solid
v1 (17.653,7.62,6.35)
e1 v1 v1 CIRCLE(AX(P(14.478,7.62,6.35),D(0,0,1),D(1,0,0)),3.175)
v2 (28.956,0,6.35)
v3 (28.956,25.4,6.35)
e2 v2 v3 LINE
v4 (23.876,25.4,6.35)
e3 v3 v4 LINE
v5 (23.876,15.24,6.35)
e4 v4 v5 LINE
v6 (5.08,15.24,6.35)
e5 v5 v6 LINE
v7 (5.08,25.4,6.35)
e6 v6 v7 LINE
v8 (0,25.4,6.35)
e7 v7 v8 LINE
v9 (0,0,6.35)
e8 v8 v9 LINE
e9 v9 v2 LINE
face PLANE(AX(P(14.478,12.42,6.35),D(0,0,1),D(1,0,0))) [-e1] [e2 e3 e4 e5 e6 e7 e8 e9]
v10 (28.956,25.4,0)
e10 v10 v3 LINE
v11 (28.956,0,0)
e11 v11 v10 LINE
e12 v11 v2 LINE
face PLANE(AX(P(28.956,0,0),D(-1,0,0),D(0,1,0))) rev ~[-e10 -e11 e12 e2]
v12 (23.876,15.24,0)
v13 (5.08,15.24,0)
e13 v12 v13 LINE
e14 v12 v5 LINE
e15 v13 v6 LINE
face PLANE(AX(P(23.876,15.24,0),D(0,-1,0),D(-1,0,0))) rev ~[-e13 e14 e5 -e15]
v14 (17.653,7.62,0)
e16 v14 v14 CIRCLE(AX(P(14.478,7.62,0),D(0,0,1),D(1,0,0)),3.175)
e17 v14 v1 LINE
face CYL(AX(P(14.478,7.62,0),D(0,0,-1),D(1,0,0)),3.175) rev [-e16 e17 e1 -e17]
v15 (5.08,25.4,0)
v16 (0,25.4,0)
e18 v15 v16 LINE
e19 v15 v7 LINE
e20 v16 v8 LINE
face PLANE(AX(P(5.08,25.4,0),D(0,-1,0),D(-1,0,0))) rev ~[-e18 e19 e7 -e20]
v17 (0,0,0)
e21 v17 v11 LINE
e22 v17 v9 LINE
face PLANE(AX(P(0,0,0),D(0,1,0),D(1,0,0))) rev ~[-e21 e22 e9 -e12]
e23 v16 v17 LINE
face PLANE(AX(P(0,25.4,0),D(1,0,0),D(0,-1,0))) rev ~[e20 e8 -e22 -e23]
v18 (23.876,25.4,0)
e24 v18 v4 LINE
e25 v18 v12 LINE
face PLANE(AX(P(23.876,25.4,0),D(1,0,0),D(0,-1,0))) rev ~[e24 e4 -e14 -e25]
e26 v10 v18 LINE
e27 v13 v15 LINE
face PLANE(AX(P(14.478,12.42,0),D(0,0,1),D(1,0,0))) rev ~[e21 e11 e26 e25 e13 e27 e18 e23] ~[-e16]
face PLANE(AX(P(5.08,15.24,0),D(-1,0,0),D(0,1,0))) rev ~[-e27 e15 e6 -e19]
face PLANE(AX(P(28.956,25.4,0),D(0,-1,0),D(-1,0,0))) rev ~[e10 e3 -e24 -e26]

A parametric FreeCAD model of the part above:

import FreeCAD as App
import Part
import Sketcher
from FreeCAD import Vector
Q = App.Units.Quantity


def add_polygon(sketch, points):
    """Adds a closed chain of lines whose ends are joined by coincident constraints."""
    first, n = sketch.GeometryCount, len(points)
    for a, b in zip(points, points[1:] + points[:1]):
        sketch.addGeometry(Part.LineSegment(App.Vector(*a, 0), App.Vector(*b, 0)), False)
    for i in range(n):
        sketch.addConstraint(Sketcher.Constraint("Coincident", first + i, 2, first + (i + 1) % n, 1))

doc = App.newDocument("Part")
params = doc.addObject("Spreadsheet::Sheet", "Params")
for row, (alias, value) in enumerate([
    ("sketch1_diameter", "0.25 in"),
    ("sketch1_height", "1 in"),
    ("sketch1_width", "0.2 in"),
    ("sketch1_height2", "0.4 in"),
    ("sketch1_width2", "1.14 in"),
    ("pad1_length", "0.25 in"),
], start=1):
    params.set(f"A{row}", alias)
    params.set(f"B{row}", "=" + value)
    params.setAlias(f"B{row}", alias)

body = doc.addObject("PartDesign::Body", "Body")

# Sketch on XY plane
sketch1 = body.newObject("Sketcher::SketchObject", "Sketch")
sketch1.AttachmentSupport = (doc.getObject("XY_Plane"), [""])
sketch1.MapMode = "FlatFace"
add_polygon(sketch1, [(0, 25.4), (0, 0), (28.956, 0), (28.956, 25.4), (23.876, 25.4), (23.876, 15.24), (5.08, 15.24), (5.08, 25.4)])  # lines 0-7
sketch1.addGeometry(Part.Circle(Vector(14.478, 7.62, 0), Vector(0, 0, 1), 3.175), False)  # 8
sketch1.addConstraint([
    Sketcher.Constraint("Vertical", 0),
    Sketcher.Constraint("Horizontal", 1),
    Sketcher.Constraint("Vertical", 2),
    Sketcher.Constraint("Horizontal", 3),
    Sketcher.Constraint("Vertical", 4),
    Sketcher.Constraint("Horizontal", 5),
    Sketcher.Constraint("Vertical", 6),
    Sketcher.Constraint("Horizontal", 7),
    Sketcher.Constraint("Coincident", 0, 2, -1, 1),
    Sketcher.Constraint("Horizontal", 3, 2, 6, 2),
    Sketcher.Constraint("Equal", 3, 7),
    Sketcher.Constraint("Diameter", 8, Q("0.25 in")),
    Sketcher.Constraint("DistanceY", 0, 2, 0, 1, Q("1 in")),
    Sketcher.Constraint("DistanceX", 3, 2, 3, 1, Q("0.2 in")),
    Sketcher.Constraint("DistanceY", 4, 2, 4, 1, Q("0.4 in")),
    Sketcher.Constraint("DistanceX", 1, 1, 1, 2, Q("1.14 in")),
    Sketcher.Constraint("DistanceY", -1, 1, 8, 3, Q("0.3 in")),
    Sketcher.Constraint("DistanceX", -1, 1, 8, 3, Q("0.57 in")),
])
sketch1.setExpression("Constraints[19]", "Params.sketch1_diameter")
sketch1.setExpression("Constraints[20]", "Params.sketch1_height")
sketch1.setExpression("Constraints[21]", "Params.sketch1_width")
sketch1.setExpression("Constraints[22]", "Params.sketch1_height2")
sketch1.setExpression("Constraints[23]", "Params.sketch1_width2")
pad1 = body.newObject("PartDesign::Pad", "Pad")
pad1.Profile = sketch1
pad1.setExpression("Length", "Params.pad1_length")

doc.recompute()
